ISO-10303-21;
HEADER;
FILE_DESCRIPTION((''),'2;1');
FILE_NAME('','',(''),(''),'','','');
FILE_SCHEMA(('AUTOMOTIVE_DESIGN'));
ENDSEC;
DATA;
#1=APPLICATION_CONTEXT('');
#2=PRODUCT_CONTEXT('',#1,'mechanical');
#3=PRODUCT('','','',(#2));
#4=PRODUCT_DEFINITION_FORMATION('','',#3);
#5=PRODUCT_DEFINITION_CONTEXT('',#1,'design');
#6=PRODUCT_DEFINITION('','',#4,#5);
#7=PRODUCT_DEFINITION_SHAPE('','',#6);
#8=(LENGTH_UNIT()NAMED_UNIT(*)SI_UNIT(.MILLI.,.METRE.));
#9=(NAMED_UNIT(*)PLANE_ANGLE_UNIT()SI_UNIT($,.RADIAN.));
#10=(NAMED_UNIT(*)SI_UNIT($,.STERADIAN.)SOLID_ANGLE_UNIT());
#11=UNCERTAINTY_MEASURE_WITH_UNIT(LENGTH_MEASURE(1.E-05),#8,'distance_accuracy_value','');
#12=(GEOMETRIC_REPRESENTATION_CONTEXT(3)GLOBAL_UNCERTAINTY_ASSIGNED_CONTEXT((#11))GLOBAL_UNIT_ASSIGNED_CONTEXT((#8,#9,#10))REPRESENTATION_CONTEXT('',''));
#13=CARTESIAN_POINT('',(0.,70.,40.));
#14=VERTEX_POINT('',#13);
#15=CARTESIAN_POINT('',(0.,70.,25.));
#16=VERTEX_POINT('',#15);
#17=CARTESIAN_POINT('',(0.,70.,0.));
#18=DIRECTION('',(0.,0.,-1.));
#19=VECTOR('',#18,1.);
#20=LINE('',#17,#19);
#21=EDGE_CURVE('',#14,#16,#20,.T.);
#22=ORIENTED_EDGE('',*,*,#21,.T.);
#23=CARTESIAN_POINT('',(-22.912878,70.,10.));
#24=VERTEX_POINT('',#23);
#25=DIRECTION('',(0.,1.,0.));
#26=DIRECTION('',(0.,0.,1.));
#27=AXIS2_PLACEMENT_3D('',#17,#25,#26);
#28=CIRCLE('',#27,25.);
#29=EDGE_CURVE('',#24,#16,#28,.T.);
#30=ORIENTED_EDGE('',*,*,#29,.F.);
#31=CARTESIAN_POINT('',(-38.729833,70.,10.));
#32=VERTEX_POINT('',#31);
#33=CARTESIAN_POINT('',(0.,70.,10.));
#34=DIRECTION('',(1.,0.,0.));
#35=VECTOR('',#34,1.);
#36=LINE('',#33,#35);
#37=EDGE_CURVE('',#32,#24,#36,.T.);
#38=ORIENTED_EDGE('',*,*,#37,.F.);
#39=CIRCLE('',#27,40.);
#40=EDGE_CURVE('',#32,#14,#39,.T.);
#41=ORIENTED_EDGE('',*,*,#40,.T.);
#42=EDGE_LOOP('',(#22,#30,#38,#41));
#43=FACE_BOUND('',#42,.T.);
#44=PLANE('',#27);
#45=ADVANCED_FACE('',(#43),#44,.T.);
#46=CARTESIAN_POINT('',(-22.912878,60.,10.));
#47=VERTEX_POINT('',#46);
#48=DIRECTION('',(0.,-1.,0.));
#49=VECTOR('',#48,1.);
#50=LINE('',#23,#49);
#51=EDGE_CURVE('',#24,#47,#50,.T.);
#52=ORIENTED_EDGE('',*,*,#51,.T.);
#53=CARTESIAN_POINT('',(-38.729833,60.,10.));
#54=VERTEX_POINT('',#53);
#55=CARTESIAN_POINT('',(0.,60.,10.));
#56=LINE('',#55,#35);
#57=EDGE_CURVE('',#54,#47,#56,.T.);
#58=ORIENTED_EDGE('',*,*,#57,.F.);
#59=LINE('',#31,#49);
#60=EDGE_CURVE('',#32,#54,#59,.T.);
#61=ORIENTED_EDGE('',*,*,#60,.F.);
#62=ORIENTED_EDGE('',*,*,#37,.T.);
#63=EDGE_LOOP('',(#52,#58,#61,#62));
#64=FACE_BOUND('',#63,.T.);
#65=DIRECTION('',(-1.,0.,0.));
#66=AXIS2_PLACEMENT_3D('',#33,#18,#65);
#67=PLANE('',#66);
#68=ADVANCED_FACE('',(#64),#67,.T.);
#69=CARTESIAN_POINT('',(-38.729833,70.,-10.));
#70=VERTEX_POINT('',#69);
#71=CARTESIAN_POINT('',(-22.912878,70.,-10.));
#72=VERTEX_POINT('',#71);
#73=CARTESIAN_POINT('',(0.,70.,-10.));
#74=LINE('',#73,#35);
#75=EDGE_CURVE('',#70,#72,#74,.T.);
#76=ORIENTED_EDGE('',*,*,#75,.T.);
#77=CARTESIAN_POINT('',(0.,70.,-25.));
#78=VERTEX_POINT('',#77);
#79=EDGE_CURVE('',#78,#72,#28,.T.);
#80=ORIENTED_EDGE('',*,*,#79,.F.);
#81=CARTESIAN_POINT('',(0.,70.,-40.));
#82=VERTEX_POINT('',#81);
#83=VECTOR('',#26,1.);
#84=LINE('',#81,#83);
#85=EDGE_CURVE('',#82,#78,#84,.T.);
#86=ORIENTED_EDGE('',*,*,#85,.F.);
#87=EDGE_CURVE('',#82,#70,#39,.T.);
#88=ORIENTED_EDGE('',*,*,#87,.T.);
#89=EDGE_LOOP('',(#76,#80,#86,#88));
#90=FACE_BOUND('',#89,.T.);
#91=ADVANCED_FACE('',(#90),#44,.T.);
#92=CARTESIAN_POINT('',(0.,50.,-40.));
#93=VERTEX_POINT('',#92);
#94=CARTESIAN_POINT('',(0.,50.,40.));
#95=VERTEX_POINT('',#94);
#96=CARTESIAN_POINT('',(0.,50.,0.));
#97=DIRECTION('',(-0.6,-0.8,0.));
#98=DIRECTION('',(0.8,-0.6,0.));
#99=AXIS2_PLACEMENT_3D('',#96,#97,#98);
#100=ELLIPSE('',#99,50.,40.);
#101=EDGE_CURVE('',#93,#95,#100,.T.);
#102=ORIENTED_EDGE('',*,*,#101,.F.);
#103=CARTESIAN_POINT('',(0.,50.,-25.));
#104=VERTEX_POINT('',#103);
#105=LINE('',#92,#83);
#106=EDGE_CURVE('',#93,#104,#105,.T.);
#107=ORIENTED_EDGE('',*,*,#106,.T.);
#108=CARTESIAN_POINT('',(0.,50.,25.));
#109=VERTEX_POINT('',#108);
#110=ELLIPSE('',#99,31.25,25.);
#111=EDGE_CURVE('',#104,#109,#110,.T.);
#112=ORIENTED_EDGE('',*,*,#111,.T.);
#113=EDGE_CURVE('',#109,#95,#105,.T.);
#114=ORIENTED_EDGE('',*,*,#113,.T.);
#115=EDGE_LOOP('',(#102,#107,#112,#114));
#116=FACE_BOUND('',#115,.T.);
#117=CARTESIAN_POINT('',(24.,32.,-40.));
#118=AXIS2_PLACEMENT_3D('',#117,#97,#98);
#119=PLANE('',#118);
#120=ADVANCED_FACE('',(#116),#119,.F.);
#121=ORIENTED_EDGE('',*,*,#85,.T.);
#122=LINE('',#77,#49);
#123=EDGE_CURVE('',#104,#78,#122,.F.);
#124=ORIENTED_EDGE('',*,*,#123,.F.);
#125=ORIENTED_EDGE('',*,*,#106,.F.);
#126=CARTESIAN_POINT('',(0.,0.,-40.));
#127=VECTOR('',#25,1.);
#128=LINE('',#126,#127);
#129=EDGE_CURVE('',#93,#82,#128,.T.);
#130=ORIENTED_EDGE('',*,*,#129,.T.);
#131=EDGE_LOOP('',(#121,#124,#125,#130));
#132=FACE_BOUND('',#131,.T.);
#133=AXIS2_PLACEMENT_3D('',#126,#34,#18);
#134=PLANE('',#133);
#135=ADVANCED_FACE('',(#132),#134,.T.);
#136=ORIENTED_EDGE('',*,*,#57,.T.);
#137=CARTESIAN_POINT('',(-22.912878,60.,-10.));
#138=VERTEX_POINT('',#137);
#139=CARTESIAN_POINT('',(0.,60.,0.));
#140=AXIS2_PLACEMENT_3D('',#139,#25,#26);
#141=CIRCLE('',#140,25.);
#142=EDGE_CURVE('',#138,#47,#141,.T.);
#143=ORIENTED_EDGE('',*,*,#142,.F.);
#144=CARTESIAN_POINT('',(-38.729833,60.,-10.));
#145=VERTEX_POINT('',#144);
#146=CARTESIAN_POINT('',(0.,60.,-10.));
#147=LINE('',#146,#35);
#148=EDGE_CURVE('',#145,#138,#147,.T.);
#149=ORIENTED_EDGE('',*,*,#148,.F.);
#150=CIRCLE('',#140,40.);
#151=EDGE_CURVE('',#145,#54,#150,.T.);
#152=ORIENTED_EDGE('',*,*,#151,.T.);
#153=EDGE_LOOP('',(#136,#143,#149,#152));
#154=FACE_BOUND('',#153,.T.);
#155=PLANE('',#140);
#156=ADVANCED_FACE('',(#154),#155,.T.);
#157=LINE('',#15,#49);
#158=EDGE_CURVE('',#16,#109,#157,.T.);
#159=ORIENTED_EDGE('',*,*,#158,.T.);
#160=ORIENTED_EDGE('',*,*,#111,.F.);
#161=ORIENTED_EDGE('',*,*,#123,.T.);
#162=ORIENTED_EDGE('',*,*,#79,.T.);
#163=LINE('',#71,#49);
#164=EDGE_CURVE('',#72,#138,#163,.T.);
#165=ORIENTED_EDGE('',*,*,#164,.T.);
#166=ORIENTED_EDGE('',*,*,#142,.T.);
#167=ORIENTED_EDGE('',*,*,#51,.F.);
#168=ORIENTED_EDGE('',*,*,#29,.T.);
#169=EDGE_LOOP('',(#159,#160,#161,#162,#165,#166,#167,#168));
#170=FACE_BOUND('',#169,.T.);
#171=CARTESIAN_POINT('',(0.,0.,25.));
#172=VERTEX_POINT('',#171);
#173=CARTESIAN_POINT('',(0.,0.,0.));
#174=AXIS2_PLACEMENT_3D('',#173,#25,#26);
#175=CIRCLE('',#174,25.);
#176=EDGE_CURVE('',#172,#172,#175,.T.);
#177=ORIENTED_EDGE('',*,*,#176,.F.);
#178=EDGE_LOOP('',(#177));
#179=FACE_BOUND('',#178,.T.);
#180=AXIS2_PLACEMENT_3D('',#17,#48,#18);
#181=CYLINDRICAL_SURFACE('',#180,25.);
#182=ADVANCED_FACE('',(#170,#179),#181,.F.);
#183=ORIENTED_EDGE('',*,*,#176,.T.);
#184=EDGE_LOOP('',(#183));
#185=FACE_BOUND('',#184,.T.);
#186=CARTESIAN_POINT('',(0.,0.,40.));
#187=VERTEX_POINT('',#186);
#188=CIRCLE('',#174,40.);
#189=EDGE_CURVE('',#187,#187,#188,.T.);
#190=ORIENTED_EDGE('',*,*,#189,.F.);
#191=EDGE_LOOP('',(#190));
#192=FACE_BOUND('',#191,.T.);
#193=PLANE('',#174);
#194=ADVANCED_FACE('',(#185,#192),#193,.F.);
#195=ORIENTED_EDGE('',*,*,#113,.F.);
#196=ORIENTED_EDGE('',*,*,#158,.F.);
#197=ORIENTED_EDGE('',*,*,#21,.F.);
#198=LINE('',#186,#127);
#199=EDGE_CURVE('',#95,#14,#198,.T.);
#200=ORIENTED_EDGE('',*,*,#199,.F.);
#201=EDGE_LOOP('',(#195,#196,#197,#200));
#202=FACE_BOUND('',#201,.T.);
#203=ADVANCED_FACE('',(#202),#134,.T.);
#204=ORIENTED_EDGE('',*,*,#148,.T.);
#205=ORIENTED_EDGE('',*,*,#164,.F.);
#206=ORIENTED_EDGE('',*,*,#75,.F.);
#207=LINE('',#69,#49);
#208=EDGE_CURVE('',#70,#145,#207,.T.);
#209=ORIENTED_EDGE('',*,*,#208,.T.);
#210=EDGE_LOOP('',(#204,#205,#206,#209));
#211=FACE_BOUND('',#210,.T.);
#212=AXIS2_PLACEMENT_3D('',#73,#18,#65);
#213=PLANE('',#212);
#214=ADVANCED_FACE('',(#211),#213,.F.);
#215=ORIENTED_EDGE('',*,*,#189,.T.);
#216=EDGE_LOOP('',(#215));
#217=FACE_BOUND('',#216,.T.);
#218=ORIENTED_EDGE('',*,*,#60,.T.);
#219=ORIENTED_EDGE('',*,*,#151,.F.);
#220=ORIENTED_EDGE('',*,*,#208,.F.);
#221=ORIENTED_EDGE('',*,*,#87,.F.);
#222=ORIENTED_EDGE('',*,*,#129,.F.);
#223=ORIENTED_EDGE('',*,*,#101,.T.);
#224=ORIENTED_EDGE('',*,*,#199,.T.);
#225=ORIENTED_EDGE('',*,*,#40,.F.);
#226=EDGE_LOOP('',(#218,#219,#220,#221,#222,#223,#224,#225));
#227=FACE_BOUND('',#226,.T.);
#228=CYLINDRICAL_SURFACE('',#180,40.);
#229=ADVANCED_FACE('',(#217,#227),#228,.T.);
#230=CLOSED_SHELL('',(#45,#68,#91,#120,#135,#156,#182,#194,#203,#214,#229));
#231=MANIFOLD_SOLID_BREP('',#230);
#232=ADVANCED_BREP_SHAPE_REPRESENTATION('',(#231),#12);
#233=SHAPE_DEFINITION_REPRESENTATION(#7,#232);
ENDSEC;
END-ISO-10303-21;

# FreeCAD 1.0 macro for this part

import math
import FreeCAD as App
import Part
import Sketcher

V = App.Vector
Q = App.Units.Quantity


def add_polygon(sketch, points):
    """Adds a closed chain of lines whose ends are joined by coincident constraints."""
    first, n = sketch.GeometryCount, len(points)
    for a, b in zip(points, points[1:] + points[:1]):
        sketch.addGeometry(Part.LineSegment(App.Vector(*a, 0), App.Vector(*b, 0)), False)
    for i in range(n):
        sketch.addConstraint(Sketcher.Constraint("Coincident", first + i, 2, first + (i + 1) % n, 1))

doc = App.newDocument("Part")
body = doc.addObject("PartDesign::Body", "Body")

# Sketch on XZ plane
sketch1 = body.newObject("Sketcher::SketchObject", "Sketch")
sketch1.AttachmentSupport = (doc.getObject("XZ_Plane"), [""])
sketch1.MapMode = "FlatFace"
sketch1.addGeometry([
    Part.ArcOfCircle(Part.Circle(V(0, 0, 0), V(0, 0, 1), 40), math.radians(-90), math.radians(0)),  # 0
    Part.ArcOfCircle(Part.Circle(V(0, 0, 0), V(0, 0, 1), 40), math.radians(-166), math.radians(-90)),  # 1
    Part.LineSegment(V(-39, -10, 0), V(-23, -10, 0)),  # 2
    Part.ArcOfCircle(Part.Circle(V(0, 0, 0), V(0, 0, 1), 25), math.radians(-156), math.radians(-90)),  # 3
    Part.ArcOfCircle(Part.Circle(V(0, 0, 0), V(0, 0, 1), 25), math.radians(-90), math.radians(0)),  # 4
    Part.ArcOfCircle(Part.Circle(V(0, 0, 0), V(0, 0, 1), 25), math.radians(0), math.radians(90)),  # 5
    Part.ArcOfCircle(Part.Circle(V(0, 0, 0), V(0, 0, 1), 25), math.radians(90), math.radians(156)),  # 6
    Part.LineSegment(V(-23, 10, 0), V(-39, 10, 0)),  # 7
    Part.ArcOfCircle(Part.Circle(V(0, 0, 0), V(0, 0, 1), 40), math.radians(90), math.radians(166)),  # 8
    Part.ArcOfCircle(Part.Circle(V(0, 0, 0), V(0, 0, 1), 40), math.radians(0), math.radians(90)),  # 9
], False)
sketch1.addConstraint([
    Sketcher.Constraint("Tangent", 0, 1, 1, 2),
    Sketcher.Constraint("Coincident", 1, 1, 2, 1),
    Sketcher.Constraint("Coincident", 2, 2, 3, 1),
    Sketcher.Constraint("Tangent", 3, 2, 4, 1),
    Sketcher.Constraint("Tangent", 4, 2, 5, 1),
    Sketcher.Constraint("Tangent", 5, 2, 6, 1),
    Sketcher.Constraint("Coincident", 6, 2, 7, 1),
    Sketcher.Constraint("Coincident", 7, 2, 8, 2),
    Sketcher.Constraint("Tangent", 8, 1, 9, 2),
    Sketcher.Constraint("Tangent", 9, 1, 0, 2),
    Sketcher.Constraint("Horizontal", 2),
    Sketcher.Constraint("Horizontal", 7),
    Sketcher.Constraint("Coincident", 0, 3, -1, 1),
    Sketcher.Constraint("Coincident", 3, 3, -1, 1),
    Sketcher.Constraint("Coincident", 5, 3, -1, 1),
    Sketcher.Constraint("Coincident", 8, 3, -1, 1),
    Sketcher.Constraint("Equal", 0, 1),
    Sketcher.Constraint("Equal", 5, 6),
    Sketcher.Constraint("PointOnObject", 0, 1, -2),
    Sketcher.Constraint("PointOnObject", 3, 2, -2),
    Sketcher.Constraint("PointOnObject", 4, 2, -1),
    Sketcher.Constraint("PointOnObject", 5, 2, -2),
    Sketcher.Constraint("PointOnObject", 8, 1, -2),
    Sketcher.Constraint("PointOnObject", 9, 1, -1),
    Sketcher.Constraint("Vertical", 2, 2, 6, 2),
    Sketcher.Constraint("Radius", 0, Q("40 mm")),
    Sketcher.Constraint("Radius", 3, Q("25 mm")),
    Sketcher.Constraint("DistanceY", 1, 1, -1, 1, Q("10 mm")),
])
pad1 = body.newObject("PartDesign::Pad", "Pad")
pad1.Profile = sketch1
pad1.Length = 70
pad1.Reversed = True

# Sketch on XZ plane
sketch2 = body.newObject("Sketcher::SketchObject", "Sketch001")
sketch2.AttachmentSupport = (doc.getObject("XZ_Plane"), [""])
sketch2.MapMode = "FlatFace"
sketch2.addGeometry([
    Part.LineSegment(V(-23, -10, 0), V(-39, -10, 0)),
    Part.ArcOfCircle(Part.Circle(V(0, 0, 0), V(0, 0, 1), 40), math.radians(166), math.radians(194)),
    Part.LineSegment(V(-39, 10, 0), V(-23, 10, 0)),
    Part.ArcOfCircle(Part.Circle(V(0, 0, 0), V(0, 0, 1), 25), math.radians(156), math.radians(204)),
], False)
sketch2.addConstraint([
    Sketcher.Constraint("Coincident", 0, 2, 1, 2),
    Sketcher.Constraint("Coincident", 1, 1, 2, 1),
    Sketcher.Constraint("Coincident", 2, 2, 3, 1),
    Sketcher.Constraint("Coincident", 3, 2, 0, 1),
    Sketcher.Constraint("Horizontal", 0),
    Sketcher.Constraint("Horizontal", 2),
    Sketcher.Constraint("Coincident", 1, 3, -1, 1),
    Sketcher.Constraint("Coincident", 3, 3, -1, 1),
    Sketcher.Constraint("Vertical", 0, 2, 1, 1),
    Sketcher.Constraint("Radius", 1, Q("40 mm")),
    Sketcher.Constraint("Radius", 3, Q("25 mm")),
    Sketcher.Constraint("DistanceY", 0, 2, -1, 1, Q("10 mm")),
])
pad2 = body.newObject("PartDesign::Pad", "Pad001")
pad2.Profile = sketch2
pad2.Length = 60
pad2.Reversed = True

# Sketch on XY plane
sketch3 = body.newObject("Sketcher::SketchObject", "Sketch002")
sketch3.AttachmentSupport = (doc.getObject("XY_Plane"), [""])
sketch3.MapMode = "FlatFace"
add_polygon(sketch3, [(0, 50), (40, 20), (40, 70), (0, 70)])  # lines 0-3
sketch3.addConstraint([
    Sketcher.Constraint("Vertical", 1),
    Sketcher.Constraint("Horizontal", 2),
    Sketcher.Constraint("Vertical", 3),
    Sketcher.Constraint("PointOnObject", 2, 2, -2),
    Sketcher.Constraint("DistanceX", 2, 2, 2, 1, Q("40 mm")),
    Sketcher.Constraint("DistanceY", 1, 1, 1, 2, Q("50 mm")),
    Sketcher.Constraint("DistanceY", 3, 2, 3, 1, Q("20 mm")),
    Sketcher.Constraint("DistanceY", -1, 1, 0, 2, Q("20 mm")),
])
pocket1 = body.newObject("PartDesign::Pocket", "Pocket")
pocket1.Profile = sketch3
pocket1.Type = "ThroughAll"
pocket1.Midplane = True

doc.recompute()
